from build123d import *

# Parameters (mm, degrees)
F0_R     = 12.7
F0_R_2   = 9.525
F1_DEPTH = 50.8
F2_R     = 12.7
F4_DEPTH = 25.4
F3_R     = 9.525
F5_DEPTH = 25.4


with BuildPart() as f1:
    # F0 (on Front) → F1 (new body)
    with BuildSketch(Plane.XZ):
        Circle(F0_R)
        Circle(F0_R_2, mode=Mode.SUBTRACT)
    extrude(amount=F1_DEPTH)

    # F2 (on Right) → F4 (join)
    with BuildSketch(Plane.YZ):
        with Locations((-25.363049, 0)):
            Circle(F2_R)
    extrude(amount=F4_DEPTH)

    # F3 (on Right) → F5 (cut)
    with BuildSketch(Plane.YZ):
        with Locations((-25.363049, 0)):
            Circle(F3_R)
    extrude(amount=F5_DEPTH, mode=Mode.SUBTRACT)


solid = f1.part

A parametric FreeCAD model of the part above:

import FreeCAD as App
import Part
import Sketcher
from FreeCAD import Vector
Q = App.Units.Quantity

doc = App.newDocument("Part")
params = doc.addObject("Spreadsheet::Sheet", "Params")
for row, (alias, value) in enumerate([
    ("sketch1_diameter", "1 in"),
    ("sketch1_diameter2", "0.75 in"),
    ("pad1_length", "2 in"),
    ("sketch2_diameter", "1 in"),
    ("pad2_length", "1 in"),
    ("sketch3_diameter", "0.75 in"),
    ("pocket1_length", "1 in"),
], start=1):
    params.set(f"A{row}", alias)
    params.set(f"B{row}", "=" + value)
    params.setAlias(f"B{row}", alias)

body = doc.addObject("PartDesign::Body", "Body")

# Sketch on XZ plane
sketch1 = body.newObject("Sketcher::SketchObject", "Sketch")
sketch1.AttachmentSupport = (doc.getObject("XZ_Plane"), [""])
sketch1.MapMode = "FlatFace"
sketch1.addGeometry([
    Part.Circle(Vector(0, 0, 0), Vector(0, 0, 1), 13),
    Part.Circle(Vector(0, 0, 0), Vector(0, 0, 1), 10),
], False)
sketch1.addConstraint([
    Sketcher.Constraint("Coincident", 0, 3, -1, 1),
    Sketcher.Constraint("Coincident", 1, 3, -1, 1),
    Sketcher.Constraint("Diameter", 0, Q("1 in")),
    Sketcher.Constraint("Diameter", 1, Q("0.75 in")),
])
sketch1.setExpression("Constraints[2]", "Params.sketch1_diameter")
sketch1.setExpression("Constraints[3]", "Params.sketch1_diameter2")
pad1 = body.newObject("PartDesign::Pad", "Pad")
pad1.Profile = sketch1
pad1.setExpression("Length", "Params.pad1_length")

# Sketch on YZ plane
sketch2 = body.newObject("Sketcher::SketchObject", "Sketch001")
sketch2.AttachmentSupport = (doc.getObject("YZ_Plane"), [""])
sketch2.MapMode = "FlatFace"
sketch2.addGeometry(Part.Circle(Vector(-25, 0, 0), Vector(0, 0, 1), 13), False)
sketch2.addConstraint([
    Sketcher.Constraint("PointOnObject", 0, 3, -1),
    Sketcher.Constraint("Diameter", 0, Q("1 in")),
    Sketcher.Constraint("DistanceX", 0, 3, -1, 1, 25.363049),
])
sketch2.setExpression("Constraints[1]", "Params.sketch2_diameter")
pad2 = body.newObject("PartDesign::Pad", "Pad001")
pad2.Profile = sketch2
pad2.setExpression("Length", "Params.pad2_length")

# Sketch on YZ plane
sketch3 = body.newObject("Sketcher::SketchObject", "Sketch002")
sketch3.AttachmentSupport = (doc.getObject("YZ_Plane"), [""])
sketch3.MapMode = "FlatFace"
sketch3.addGeometry(Part.Circle(Vector(-25, 0, 0), Vector(0, 0, 1), 10), False)
sketch3.addConstraint([
    Sketcher.Constraint("PointOnObject", 0, 3, -1),
    Sketcher.Constraint("Diameter", 0, Q("0.75 in")),
    Sketcher.Constraint("DistanceX", 0, 3, -1, 1, 25.363049),
])
sketch3.setExpression("Constraints[1]", "Params.sketch3_diameter")
pocket1 = body.newObject("PartDesign::Pocket", "Pocket")
pocket1.Profile = sketch3
pocket1.setExpression("Length", "Params.pocket1_length")
pocket1.Reversed = True

doc.recompute()
